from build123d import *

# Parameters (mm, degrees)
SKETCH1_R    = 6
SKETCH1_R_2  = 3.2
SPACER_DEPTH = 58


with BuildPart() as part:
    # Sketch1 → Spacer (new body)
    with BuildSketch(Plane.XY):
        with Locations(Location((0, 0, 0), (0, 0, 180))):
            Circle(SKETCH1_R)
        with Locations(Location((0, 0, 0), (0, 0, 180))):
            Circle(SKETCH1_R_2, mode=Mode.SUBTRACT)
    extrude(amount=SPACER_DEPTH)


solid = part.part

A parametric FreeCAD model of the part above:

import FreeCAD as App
import Part
import Sketcher

doc = App.newDocument("Part")
body = doc.addObject("PartDesign::Body", "Body")

sketch1 = doc.addObject("Sketcher::SketchObject", "Sketch")
body.addObject(sketch1)
sketch1.AttachmentSupport = (doc.XY_Plane, [""])
sketch1.MapMode = "FlatFace"
sketch1.addGeometry(Part.Circle(App.Vector(0, 0, 0), App.Vector(0, 0, 1), 6), False)
sketch1.addGeometry(Part.Circle(App.Vector(0, 0, 0), App.Vector(0, 0, 1), 3.2), False)
sketch1.addConstraint(Sketcher.Constraint("Coincident", 0, 3, -1, 1))
sketch1.addConstraint(Sketcher.Constraint("Coincident", 1, 3, -1, 1))
sketch1.addConstraint(Sketcher.Constraint("Diameter", 0, 12.0))
sketch1.addConstraint(Sketcher.Constraint("Diameter", 1, 6.4))
pad1 = doc.addObject("PartDesign::Pad", "Pad")
body.addObject(pad1)
pad1.Profile = sketch1
pad1.Length = 58

doc.recompute()
